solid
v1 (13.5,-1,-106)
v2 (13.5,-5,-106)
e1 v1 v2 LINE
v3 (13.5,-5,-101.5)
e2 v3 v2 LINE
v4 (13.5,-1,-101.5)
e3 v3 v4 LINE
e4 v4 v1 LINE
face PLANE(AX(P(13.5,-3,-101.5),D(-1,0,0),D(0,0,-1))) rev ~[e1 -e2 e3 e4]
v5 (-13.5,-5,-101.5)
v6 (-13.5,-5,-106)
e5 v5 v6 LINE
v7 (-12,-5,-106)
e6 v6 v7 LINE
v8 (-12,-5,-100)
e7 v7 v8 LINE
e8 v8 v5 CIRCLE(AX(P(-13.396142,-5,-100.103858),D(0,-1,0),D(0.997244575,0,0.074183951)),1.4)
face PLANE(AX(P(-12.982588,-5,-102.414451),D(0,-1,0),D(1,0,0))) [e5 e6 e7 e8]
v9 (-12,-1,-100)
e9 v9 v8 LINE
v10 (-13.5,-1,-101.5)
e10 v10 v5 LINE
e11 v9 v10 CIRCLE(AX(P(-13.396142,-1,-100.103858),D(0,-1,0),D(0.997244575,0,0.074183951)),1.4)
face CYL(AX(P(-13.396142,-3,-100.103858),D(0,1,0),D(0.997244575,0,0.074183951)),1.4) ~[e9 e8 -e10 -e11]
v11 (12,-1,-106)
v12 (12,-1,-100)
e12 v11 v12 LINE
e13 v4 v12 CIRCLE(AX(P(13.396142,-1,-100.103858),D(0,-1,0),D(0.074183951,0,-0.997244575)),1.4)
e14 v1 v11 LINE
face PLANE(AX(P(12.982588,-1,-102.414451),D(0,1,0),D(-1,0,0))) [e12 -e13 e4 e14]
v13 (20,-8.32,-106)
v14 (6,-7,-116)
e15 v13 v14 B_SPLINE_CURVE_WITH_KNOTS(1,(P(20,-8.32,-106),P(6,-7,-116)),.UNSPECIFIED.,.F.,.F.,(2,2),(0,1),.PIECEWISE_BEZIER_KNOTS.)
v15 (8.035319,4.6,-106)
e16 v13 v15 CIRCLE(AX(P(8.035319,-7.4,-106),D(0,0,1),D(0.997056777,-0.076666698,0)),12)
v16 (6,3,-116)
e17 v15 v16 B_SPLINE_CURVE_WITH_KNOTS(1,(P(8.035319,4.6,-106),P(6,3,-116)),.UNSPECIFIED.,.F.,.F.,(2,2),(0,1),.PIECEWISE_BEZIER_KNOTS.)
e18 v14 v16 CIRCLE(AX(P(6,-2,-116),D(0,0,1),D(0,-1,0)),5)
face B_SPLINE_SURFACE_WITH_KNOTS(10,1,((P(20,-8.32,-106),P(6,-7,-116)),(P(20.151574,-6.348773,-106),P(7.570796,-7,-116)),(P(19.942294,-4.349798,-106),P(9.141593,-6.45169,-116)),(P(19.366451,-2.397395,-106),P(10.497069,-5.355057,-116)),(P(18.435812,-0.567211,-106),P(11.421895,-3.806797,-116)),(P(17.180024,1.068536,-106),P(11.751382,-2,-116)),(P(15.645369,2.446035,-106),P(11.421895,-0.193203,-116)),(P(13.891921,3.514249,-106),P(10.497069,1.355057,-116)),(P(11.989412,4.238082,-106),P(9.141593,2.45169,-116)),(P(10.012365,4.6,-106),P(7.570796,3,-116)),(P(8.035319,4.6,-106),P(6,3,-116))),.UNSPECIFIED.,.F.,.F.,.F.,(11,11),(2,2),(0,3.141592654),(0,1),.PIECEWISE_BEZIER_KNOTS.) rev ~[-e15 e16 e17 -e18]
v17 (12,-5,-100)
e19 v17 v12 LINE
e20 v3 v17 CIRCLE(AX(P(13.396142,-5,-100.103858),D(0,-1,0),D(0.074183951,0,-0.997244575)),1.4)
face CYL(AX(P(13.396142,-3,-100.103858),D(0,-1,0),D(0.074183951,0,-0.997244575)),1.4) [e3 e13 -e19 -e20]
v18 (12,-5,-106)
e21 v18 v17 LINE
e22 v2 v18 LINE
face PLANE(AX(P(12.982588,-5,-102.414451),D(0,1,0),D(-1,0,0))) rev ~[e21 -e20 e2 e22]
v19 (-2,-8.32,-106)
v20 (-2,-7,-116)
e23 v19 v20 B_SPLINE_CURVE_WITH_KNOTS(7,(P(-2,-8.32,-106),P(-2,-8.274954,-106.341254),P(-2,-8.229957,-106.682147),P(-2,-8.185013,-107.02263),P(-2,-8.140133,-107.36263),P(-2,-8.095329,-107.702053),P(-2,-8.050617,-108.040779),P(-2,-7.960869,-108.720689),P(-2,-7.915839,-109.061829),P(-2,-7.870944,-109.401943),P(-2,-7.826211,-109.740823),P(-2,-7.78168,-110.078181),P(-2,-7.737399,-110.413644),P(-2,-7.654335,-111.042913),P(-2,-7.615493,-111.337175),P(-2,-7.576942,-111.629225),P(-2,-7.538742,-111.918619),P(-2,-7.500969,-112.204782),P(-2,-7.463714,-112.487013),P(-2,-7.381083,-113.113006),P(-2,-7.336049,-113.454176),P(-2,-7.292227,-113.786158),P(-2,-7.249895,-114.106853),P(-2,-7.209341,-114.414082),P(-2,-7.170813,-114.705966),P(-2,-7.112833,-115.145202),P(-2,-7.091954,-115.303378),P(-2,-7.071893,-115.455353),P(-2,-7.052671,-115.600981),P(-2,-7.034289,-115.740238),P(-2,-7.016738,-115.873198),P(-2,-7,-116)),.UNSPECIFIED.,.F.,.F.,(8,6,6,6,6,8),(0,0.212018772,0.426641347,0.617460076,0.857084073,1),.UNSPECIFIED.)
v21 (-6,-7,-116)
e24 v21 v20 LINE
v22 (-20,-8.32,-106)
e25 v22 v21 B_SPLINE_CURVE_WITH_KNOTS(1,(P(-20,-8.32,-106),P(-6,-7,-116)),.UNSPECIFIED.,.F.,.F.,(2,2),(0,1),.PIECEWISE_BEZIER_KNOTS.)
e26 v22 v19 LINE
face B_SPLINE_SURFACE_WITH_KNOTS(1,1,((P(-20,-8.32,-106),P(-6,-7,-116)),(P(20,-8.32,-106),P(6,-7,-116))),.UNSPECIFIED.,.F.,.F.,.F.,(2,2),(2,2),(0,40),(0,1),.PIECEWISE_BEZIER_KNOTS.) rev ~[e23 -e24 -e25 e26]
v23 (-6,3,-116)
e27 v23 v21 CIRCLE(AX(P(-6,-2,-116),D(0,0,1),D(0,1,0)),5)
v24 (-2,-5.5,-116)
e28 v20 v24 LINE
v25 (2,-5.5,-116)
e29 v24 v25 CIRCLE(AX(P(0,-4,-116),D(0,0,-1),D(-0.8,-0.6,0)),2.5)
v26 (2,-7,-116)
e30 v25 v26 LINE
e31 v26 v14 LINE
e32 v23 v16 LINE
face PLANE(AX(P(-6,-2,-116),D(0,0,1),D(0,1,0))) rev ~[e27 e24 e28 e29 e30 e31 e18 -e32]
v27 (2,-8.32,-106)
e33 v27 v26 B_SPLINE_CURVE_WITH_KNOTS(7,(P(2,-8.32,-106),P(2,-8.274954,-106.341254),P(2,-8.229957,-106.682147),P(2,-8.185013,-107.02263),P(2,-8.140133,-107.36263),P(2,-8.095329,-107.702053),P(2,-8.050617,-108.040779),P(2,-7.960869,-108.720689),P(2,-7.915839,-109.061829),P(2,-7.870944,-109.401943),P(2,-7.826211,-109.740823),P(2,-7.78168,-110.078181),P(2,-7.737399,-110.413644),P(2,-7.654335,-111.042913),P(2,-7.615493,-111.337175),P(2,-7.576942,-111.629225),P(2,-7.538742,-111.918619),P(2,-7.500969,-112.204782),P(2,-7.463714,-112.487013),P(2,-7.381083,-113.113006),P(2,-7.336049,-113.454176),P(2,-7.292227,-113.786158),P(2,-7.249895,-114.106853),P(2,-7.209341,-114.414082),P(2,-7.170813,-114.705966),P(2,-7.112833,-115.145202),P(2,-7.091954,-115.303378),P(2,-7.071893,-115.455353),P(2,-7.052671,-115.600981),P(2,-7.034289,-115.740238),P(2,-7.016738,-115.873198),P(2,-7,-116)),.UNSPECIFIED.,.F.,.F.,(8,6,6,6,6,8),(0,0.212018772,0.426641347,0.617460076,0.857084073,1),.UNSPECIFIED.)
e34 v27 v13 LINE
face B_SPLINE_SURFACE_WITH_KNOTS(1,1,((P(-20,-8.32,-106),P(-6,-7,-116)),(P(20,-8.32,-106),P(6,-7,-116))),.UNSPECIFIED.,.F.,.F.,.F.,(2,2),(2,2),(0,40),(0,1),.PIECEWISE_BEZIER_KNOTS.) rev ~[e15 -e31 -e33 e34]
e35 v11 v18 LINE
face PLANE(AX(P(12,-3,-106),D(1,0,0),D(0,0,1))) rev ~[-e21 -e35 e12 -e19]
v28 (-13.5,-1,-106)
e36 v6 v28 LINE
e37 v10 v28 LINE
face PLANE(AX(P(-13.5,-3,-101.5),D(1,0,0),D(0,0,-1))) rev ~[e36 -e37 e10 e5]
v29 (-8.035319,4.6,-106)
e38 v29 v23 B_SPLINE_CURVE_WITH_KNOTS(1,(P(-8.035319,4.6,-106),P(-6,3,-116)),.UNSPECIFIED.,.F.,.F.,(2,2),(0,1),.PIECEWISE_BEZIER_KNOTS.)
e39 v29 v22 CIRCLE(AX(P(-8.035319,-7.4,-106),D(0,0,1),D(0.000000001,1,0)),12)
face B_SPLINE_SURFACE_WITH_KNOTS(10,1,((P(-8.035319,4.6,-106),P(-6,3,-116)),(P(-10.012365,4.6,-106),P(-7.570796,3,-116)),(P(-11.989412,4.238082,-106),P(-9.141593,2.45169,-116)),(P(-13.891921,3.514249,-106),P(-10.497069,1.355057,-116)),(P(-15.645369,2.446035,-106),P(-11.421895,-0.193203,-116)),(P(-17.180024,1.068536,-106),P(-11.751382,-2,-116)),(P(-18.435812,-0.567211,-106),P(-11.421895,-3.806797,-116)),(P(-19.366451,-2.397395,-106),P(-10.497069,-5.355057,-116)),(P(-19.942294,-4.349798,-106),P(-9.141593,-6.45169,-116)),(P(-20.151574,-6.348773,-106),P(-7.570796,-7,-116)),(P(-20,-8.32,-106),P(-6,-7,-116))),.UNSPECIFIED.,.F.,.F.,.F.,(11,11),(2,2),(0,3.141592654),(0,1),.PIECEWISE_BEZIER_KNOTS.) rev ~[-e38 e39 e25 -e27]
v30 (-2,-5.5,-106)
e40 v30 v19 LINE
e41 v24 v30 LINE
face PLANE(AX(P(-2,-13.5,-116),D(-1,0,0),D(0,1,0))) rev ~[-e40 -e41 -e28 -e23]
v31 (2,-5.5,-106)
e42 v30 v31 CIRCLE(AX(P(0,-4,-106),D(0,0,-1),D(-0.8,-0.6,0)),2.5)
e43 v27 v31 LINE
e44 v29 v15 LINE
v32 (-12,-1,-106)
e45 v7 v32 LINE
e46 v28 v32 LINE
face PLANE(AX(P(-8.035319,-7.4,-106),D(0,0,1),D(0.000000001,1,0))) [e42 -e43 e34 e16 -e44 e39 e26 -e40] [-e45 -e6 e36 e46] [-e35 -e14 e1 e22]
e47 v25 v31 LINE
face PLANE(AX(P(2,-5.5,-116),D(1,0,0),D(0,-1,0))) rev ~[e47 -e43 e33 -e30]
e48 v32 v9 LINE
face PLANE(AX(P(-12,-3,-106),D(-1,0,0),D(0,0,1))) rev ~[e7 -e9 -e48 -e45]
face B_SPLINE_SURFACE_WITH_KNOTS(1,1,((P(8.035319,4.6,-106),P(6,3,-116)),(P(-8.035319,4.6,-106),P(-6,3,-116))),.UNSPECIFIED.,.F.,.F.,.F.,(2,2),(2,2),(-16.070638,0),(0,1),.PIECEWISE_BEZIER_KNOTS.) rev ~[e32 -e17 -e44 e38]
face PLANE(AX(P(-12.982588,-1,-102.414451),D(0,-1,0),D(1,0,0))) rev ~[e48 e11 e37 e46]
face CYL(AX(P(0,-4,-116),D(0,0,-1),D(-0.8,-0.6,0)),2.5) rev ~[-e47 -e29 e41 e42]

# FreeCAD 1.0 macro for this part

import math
import FreeCAD as App
import Part
import Sketcher
from FreeCAD import Vector

doc = App.newDocument("Part")
body = doc.addObject("PartDesign::Body", "Body")

# Sketch on XY plane
sketch1 = doc.addObject("Sketcher::SketchObject", "Sketch")
body.addObject(sketch1)
sketch1.AttachmentSupport = (doc.XY_Plane, [""])
sketch1.MapMode = "FlatFace"
sketch1.addGeometry([
    Part.ArcOfCircle(Part.Circle(Vector(-8, -7, 0), Vector(0, 0, 1), 12), math.radians(90), math.radians(184)),
    Part.LineSegment(Vector(-20, -8, 0), Vector(20, -8, 0)),
    Part.ArcOfCircle(Part.Circle(Vector(8, -7, 0), Vector(0, 0, 1), 12), math.radians(-4), math.radians(90)),
    Part.LineSegment(Vector(8, 5, 0), Vector(-8, 5, 0)),
], False)
sketch1.addConstraint([
    Sketcher.Constraint("Coincident", 0, 2, 1, 1),
    Sketcher.Constraint("Coincident", 1, 2, 2, 1),
    Sketcher.Constraint("Tangent", 2, 2, 3, 1),
    Sketcher.Constraint("Tangent", 3, 2, 0, 1),
    Sketcher.Constraint("Horizontal", 1),
    Sketcher.Constraint("Horizontal", 3),
    Sketcher.Constraint("Equal", 0, 2),
    Sketcher.Constraint("Radius", 0, 12.0),
    Sketcher.Constraint("DistanceX", 1, 1, 1, 2, 40.0),
    Sketcher.Constraint("DistanceX", 0, 2, -1, 1, 20.0),
    Sketcher.Constraint("DistanceY", 0, 3, -1, 1, 7.4),
    Sketcher.Constraint("DistanceY", 0, 2, -1, 1, 8.32),
])

# Sketch on XY plane
sketch2 = doc.addObject("Sketcher::SketchObject", "Sketch001")
body.addObject(sketch2)
sketch2.AttachmentSupport = (doc.XY_Plane, [""])
sketch2.MapMode = "FlatFace"
sketch2.AttachmentOffset = App.Placement(Vector(0, 0, -10), App.Rotation())
sketch2.addGeometry([
    Part.ArcOfCircle(Part.Circle(Vector(-6, -2, 0), Vector(0, 0, 1), 5), math.radians(90), math.radians(270)),
    Part.LineSegment(Vector(-6, -7, 0), Vector(6, -7, 0)),
    Part.ArcOfCircle(Part.Circle(Vector(6, -2, 0), Vector(0, 0, 1), 5), math.radians(-90), math.radians(90)),
    Part.LineSegment(Vector(6, 3, 0), Vector(-6, 3, 0)),
], False)
sketch2.addConstraint([
    Sketcher.Constraint("Tangent", 0, 2, 1, 1),
    Sketcher.Constraint("Tangent", 1, 2, 2, 1),
    Sketcher.Constraint("Tangent", 2, 2, 3, 1),
    Sketcher.Constraint("Tangent", 3, 2, 0, 1),
    Sketcher.Constraint("Horizontal", 1),
    Sketcher.Constraint("Horizontal", 3),
    Sketcher.Constraint("Radius", 0, 5.0),
    Sketcher.Constraint("DistanceX", 1, 1, 1, 2, 12.0),
    Sketcher.Constraint("DistanceX", 0, 3, -1, 1, 6.0),
    Sketcher.Constraint("DistanceY", 0, 3, -1, 1, 2.0),
])

additiveloft = doc.addObject("PartDesign::AdditiveLoft", "AdditiveLoft")
body.addObject(additiveloft)
additiveloft.Profile = sketch1
additiveloft.Sections = [sketch2]

# Sketch on XZ plane
sketch3 = doc.addObject("Sketcher::SketchObject", "Sketch002")
body.addObject(sketch3)
sketch3.AttachmentSupport = (doc.XZ_Plane, [""])
sketch3.MapMode = "FlatFace"
sketch3.AttachmentOffset = App.Placement(Vector(0, 0, 3), App.Rotation())
sketch3.addGeometry([
    Part.LineSegment(Vector(-12, 0, 0), Vector(-12, 6, 0)),  # 0
    Part.ArcOfCircle(Part.Circle(Vector(-13.4, 5.9, 0), Vector(0, 0, 1), 1.4), math.radians(4), math.radians(266)),  # 1
    Part.LineSegment(Vector(-13.5, 4.5, 0), Vector(-13.5, 0, 0)),  # 2
    Part.LineSegment(Vector(-13.5, 0, 0), Vector(-12, 0, 0)),  # 3
    Part.LineSegment(Vector(12, 6, 0), Vector(12, 0, 0)),  # 4
    Part.LineSegment(Vector(12, 0, 0), Vector(13.5, 0, 0)),  # 5
    Part.LineSegment(Vector(13.5, 0, 0), Vector(13.5, 4.5, 0)),  # 6
    Part.ArcOfCircle(Part.Circle(Vector(13.4, 5.9, 0), Vector(0, 0, 1), 1.4), math.radians(-86), math.radians(176)),  # 7
], False)
sketch3.addConstraint([
    Sketcher.Constraint("Coincident", 0, 2, 1, 1),
    Sketcher.Constraint("Coincident", 1, 2, 2, 1),
    Sketcher.Constraint("Coincident", 2, 2, 3, 1),
    Sketcher.Constraint("Coincident", 3, 2, 0, 1),
    Sketcher.Constraint("Coincident", 4, 2, 5, 1),
    Sketcher.Constraint("Coincident", 5, 2, 6, 1),
    Sketcher.Constraint("Coincident", 6, 2, 7, 1),
    Sketcher.Constraint("Coincident", 7, 2, 4, 1),
    Sketcher.Constraint("Vertical", 0),
    Sketcher.Constraint("Vertical", 2),
    Sketcher.Constraint("Horizontal", 3),
    Sketcher.Constraint("Vertical", 4),
    Sketcher.Constraint("Horizontal", 5),
    Sketcher.Constraint("Vertical", 6),
    Sketcher.Constraint("Equal", 1, 7),
    Sketcher.Constraint("Symmetric", 3, 2, 4, 2, -1, 1),
    Sketcher.Constraint("Symmetric", 1, 3, 7, 3, -2),
    Sketcher.Constraint("Symmetric", 2, 2, 5, 2, -2),
    Sketcher.Constraint("Radius", 1, 1.4),
    Sketcher.Constraint("DistanceY", 0, 1, 0, 2, 6.0),
    Sketcher.Constraint("DistanceX", 3, 1, 3, 2, 1.5),
    Sketcher.Constraint("DistanceY", 2, 2, 2, 1, 4.5),
    Sketcher.Constraint("DistanceX", 0, 2, -1, 1, 12.0),
])
pad1 = doc.addObject("PartDesign::Pad", "Pad")
body.addObject(pad1)
pad1.Profile = sketch3
pad1.Length = 4
pad1.Midplane = True

# Sketch on XY plane
sketch4 = doc.addObject("Sketcher::SketchObject", "Sketch003")
body.addObject(sketch4)
sketch4.AttachmentSupport = (doc.XY_Plane, [""])
sketch4.MapMode = "FlatFace"
sketch4.AttachmentOffset = App.Placement(Vector(0, 0, -10), App.Rotation())
sketch4.addGeometry([
    Part.LineSegment(Vector(2, -13.5, 0), Vector(-2, -13.5, 0)),
    Part.LineSegment(Vector(-2, -13.5, 0), Vector(-2, -5.5, 0)),
    Part.ArcOfCircle(Part.Circle(Vector(0, -4, 0), Vector(0, 0, 1), 2.5), math.radians(-37), math.radians(217)),
    Part.LineSegment(Vector(2, -5.5, 0), Vector(2, -13.5, 0)),
], False)
sketch4.addConstraint([
    Sketcher.Constraint("Coincident", 0, 2, 1, 1),
    Sketcher.Constraint("Coincident", 1, 2, 2, 2),
    Sketcher.Constraint("Coincident", 2, 1, 3, 1),
    Sketcher.Constraint("Coincident", 3, 2, 0, 1),
    Sketcher.Constraint("Horizontal", 0),
    Sketcher.Constraint("Vertical", 1),
    Sketcher.Constraint("Vertical", 3),
    Sketcher.Constraint("Symmetric", 1, 2, 2, 1, -2),
    Sketcher.Constraint("Radius", 2, 2.5),
    Sketcher.Constraint("DistanceX", 0, 2, 0, 1, 4.0),
    Sketcher.Constraint("DistanceY", 1, 1, 1, 2, 8.0),
    Sketcher.Constraint("DistanceY", 2, 3, -1, 1, 4.0),
])
pocket1 = doc.addObject("PartDesign::Pocket", "Pocket")
body.addObject(pocket1)
pocket1.Profile = sketch4
pocket1.Length = 14
pocket1.Reversed = True
body2 = doc.addObject("PartDesign::Body", "Body001")
doc.recompute()

body.Placement = App.Placement(Vector(0, 0, -106), App.Rotation(Vector(0, 0, 1), 0))
boolean = doc.addObject("PartDesign::Boolean", "Boolean")
body2.addObject(boolean)
boolean.Type = "Fuse"
boolean.addObjects([body])

doc.recompute()
